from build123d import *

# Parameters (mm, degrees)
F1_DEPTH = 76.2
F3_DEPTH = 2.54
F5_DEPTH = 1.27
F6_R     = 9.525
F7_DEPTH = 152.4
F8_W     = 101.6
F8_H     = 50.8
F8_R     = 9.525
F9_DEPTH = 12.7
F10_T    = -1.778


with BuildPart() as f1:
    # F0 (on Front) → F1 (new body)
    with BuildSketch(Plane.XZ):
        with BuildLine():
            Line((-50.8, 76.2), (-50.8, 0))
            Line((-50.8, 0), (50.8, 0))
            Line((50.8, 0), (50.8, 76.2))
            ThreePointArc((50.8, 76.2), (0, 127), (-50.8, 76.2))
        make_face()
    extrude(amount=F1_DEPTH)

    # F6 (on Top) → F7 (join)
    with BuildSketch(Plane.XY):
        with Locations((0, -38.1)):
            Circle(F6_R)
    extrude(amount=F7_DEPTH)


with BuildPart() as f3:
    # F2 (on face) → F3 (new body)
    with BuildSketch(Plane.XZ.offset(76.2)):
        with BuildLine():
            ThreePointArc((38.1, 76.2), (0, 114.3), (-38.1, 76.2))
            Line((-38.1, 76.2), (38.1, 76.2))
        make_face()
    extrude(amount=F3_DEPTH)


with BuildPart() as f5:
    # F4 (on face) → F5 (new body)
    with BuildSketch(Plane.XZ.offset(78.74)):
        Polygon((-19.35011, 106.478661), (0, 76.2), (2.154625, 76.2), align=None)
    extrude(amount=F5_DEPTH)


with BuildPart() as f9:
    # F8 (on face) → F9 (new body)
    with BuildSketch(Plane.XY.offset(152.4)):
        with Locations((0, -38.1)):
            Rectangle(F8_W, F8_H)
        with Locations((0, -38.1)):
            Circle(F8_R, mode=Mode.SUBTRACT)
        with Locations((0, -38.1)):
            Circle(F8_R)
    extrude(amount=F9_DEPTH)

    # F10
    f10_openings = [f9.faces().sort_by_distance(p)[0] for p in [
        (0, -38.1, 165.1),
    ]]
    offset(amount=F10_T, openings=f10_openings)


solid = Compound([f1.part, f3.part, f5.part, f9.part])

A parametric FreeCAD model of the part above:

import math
import FreeCAD as App
import Part
import Sketcher
Q = App.Units.Quantity


def faces_at(feature, points):
    """Names of the faces that lie closest to the given points."""
    faces = feature.Shape.Faces
    near = lambda p: min(range(len(faces)), key=lambda i: faces[i].distToShape(Part.Vertex(*p))[0])
    return sorted({f"Face{near(p) + 1}" for p in points})


def add_polygon(sketch, points):
    """Adds a closed chain of lines whose ends are joined by coincident constraints."""
    first, n = sketch.GeometryCount, len(points)
    for a, b in zip(points, points[1:] + points[:1]):
        sketch.addGeometry(Part.LineSegment(App.Vector(*a, 0), App.Vector(*b, 0)), False)
    for i in range(n):
        sketch.addConstraint(Sketcher.Constraint("Coincident", first + i, 2, first + (i + 1) % n, 1))

doc = App.newDocument("Part")
body = doc.addObject("PartDesign::Body", "Body")

# Sketch on XZ plane
sketch1 = body.newObject("Sketcher::SketchObject", "Sketch")
sketch1.AttachmentSupport = (doc.getObject("XZ_Plane"), [""])
sketch1.MapMode = "FlatFace"
sketch1.addGeometry(Part.LineSegment(App.Vector(-51, 76, 0), App.Vector(-51, 0, 0)), False)
sketch1.addGeometry(Part.LineSegment(App.Vector(-51, 0, 0), App.Vector(51, 0, 0)), False)
sketch1.addGeometry(Part.LineSegment(App.Vector(51, 0, 0), App.Vector(51, 76, 0)), False)
sketch1.addGeometry(Part.ArcOfCircle(Part.Circle(App.Vector(0, 76, 0), App.Vector(0, 0, 1), 51), math.radians(0), math.radians(180)), False)
sketch1.addConstraint(Sketcher.Constraint("Coincident", 0, 2, 1, 1))
sketch1.addConstraint(Sketcher.Constraint("Coincident", 1, 2, 2, 1))
sketch1.addConstraint(Sketcher.Constraint("Tangent", 2, 2, 3, 1))
sketch1.addConstraint(Sketcher.Constraint("Tangent", 3, 2, 0, 1))
sketch1.addConstraint(Sketcher.Constraint("Vertical", 0))
sketch1.addConstraint(Sketcher.Constraint("Horizontal", 1))
sketch1.addConstraint(Sketcher.Constraint("Vertical", 2))
sketch1.addConstraint(Sketcher.Constraint("Symmetric", 0, 2, 1, 2, -1, 1))
sketch1.addConstraint(Sketcher.Constraint("Radius", 3, Q("2 in")))
sketch1.addConstraint(Sketcher.Constraint("DistanceY", 0, 2, 0, 1, Q("3 in")))
pad1 = body.newObject("PartDesign::Pad", "Pad")
pad1.Profile = sketch1
pad1.Length = Q("3 in")

# Sketch on XY plane
sketch2 = body.newObject("Sketcher::SketchObject", "Sketch001")
sketch2.AttachmentSupport = (doc.getObject("XY_Plane"), [""])
sketch2.MapMode = "FlatFace"
sketch2.addGeometry(Part.Circle(App.Vector(0, -38, 0), App.Vector(0, 0, 1), 10), False)
sketch2.addConstraint(Sketcher.Constraint("PointOnObject", 0, 3, -2))
sketch2.addConstraint(Sketcher.Constraint("Diameter", 0, Q("0.75 in")))
sketch2.addConstraint(Sketcher.Constraint("DistanceY", 0, 3, -1, 1, Q("1.5 in")))
pad2 = body.newObject("PartDesign::Pad", "Pad001")
pad2.Profile = sketch2
pad2.Length = Q("6 in")
body2 = doc.addObject("PartDesign::Body", "Body001")

# Sketch on XZ plane
sketch3 = body2.newObject("Sketcher::SketchObject", "Sketch002")
sketch3.AttachmentSupport = (doc.getObject("XZ_Plane001"), [""])
sketch3.MapMode = "FlatFace"
sketch3.AttachmentOffset = App.Placement(App.Vector(0, 0, 3 * 25.4), App.Rotation())
sketch3.addGeometry(Part.ArcOfCircle(Part.Circle(App.Vector(0, 76, 0), App.Vector(0, 0, 1), 38), math.radians(0), math.radians(180)), False)
sketch3.addGeometry(Part.LineSegment(App.Vector(-38, 76, 0), App.Vector(38, 76, 0)), False)
sketch3.addConstraint(Sketcher.Constraint("Coincident", 0, 1, 1, 2))
sketch3.addConstraint(Sketcher.Constraint("Coincident", 1, 1, 0, 2))
sketch3.addConstraint(Sketcher.Constraint("Horizontal", 1))
sketch3.addConstraint(Sketcher.Constraint("PointOnObject", 0, 3, -2))
sketch3.addConstraint(Sketcher.Constraint("Radius", 0, Q("1.5 in")))
sketch3.addConstraint(Sketcher.Constraint("DistanceY", -1, 1, 0, 3, Q("3 in")))
sketch3.addConstraint(Sketcher.Constraint("DistanceY", -1, 1, 0, 1, Q("3 in")))
pad3 = body2.newObject("PartDesign::Pad", "Pad002")
pad3.Profile = sketch3
pad3.Length = Q("0.1 in")
body3 = doc.addObject("PartDesign::Body", "Body002")

# Sketch on XZ plane
sketch4 = body3.newObject("Sketcher::SketchObject", "Sketch003")
sketch4.AttachmentSupport = (doc.getObject("XZ_Plane002"), [""])
sketch4.MapMode = "FlatFace"
sketch4.AttachmentOffset = App.Placement(App.Vector(0, 0, 3.1 * 25.4), App.Rotation())
add_polygon(sketch4, [(-19.4, 106.5), (0, 76.2), (2.2, 76.2)])  # lines 0-2
sketch4.addConstraint(Sketcher.Constraint("Horizontal", 1))
sketch4.addConstraint(Sketcher.Constraint("PointOnObject", 0, 2, -2))
sketch4.addConstraint(Sketcher.Constraint("DistanceY", -1, 1, 0, 2, Q("3 in")))
sketch4.addConstraint(Sketcher.Constraint("DistanceX", 1, 1, 1, 2, Q("2.154625 mm")))
sketch4.addConstraint(Sketcher.Constraint("DistanceX", 2, 2, -1, 1, Q("19.35011 mm")))
sketch4.addConstraint(Sketcher.Constraint("DistanceY", -1, 1, 2, 2, Q("106.478661 mm")))
pad4 = body3.newObject("PartDesign::Pad", "Pad003")
pad4.Profile = sketch4
pad4.Length = Q("0.05 in")
body4 = doc.addObject("PartDesign::Body", "Body003")

# Sketch on XY plane
sketch5 = body4.newObject("Sketcher::SketchObject", "Sketch004")
sketch5.AttachmentSupport = (doc.getObject("XY_Plane003"), [""])
sketch5.MapMode = "FlatFace"
sketch5.AttachmentOffset = App.Placement(App.Vector(0, 0, 6 * 25.4), App.Rotation())
add_polygon(sketch5, [(-51, -13), (-51, -64), (51, -64), (51, -13)])  # lines 0-3
sketch5.addConstraint(Sketcher.Constraint("Vertical", 0))
sketch5.addConstraint(Sketcher.Constraint("Horizontal", 1))
sketch5.addConstraint(Sketcher.Constraint("Vertical", 2))
sketch5.addConstraint(Sketcher.Constraint("Horizontal", 3))
sketch5.addConstraint(Sketcher.Constraint("DistanceX", 1, 1, 1, 2, Q("4 in")))
sketch5.addConstraint(Sketcher.Constraint("DistanceY", 0, 2, 0, 1, Q("2 in")))
sketch5.addConstraint(Sketcher.Constraint("DistanceX", 0, 2, -1, 1, Q("2 in")))
sketch5.addConstraint(Sketcher.Constraint("DistanceY", 0, 2, -1, 1, Q("2.5 in")))
pad5 = body4.newObject("PartDesign::Pad", "Pad004")
pad5.Profile = sketch5
pad5.Length = Q("0.5 in")
doc.recompute()

thickness = body4.newObject("PartDesign::Thickness", "Thickness")
thickness.Base = (pad5, faces_at(pad5, [(0, -38.1, 165.1)]))
thickness.Value = Q("0.07 in")
thickness.Reversed = True
thickness.Join = "Arc"

doc.recompute()
